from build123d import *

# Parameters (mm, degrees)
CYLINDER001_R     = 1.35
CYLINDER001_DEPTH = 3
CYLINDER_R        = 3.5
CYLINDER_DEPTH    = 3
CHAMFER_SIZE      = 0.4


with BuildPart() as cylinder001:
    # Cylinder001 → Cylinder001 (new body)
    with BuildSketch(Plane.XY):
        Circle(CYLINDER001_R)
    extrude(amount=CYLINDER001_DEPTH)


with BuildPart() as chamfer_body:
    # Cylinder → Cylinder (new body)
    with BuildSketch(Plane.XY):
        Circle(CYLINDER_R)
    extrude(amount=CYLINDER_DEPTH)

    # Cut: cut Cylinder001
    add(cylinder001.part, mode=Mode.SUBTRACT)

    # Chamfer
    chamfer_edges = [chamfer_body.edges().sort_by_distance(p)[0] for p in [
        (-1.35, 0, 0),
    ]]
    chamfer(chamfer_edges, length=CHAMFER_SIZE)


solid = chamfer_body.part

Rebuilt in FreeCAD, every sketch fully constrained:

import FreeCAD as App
import Part
import Sketcher


def edges_at(feature, points):
    """Names of the edges that pass closest to the given points."""
    edges = feature.Shape.Edges
    near = lambda p: min(range(len(edges)), key=lambda i: edges[i].distToShape(Part.Vertex(*p))[0])
    return sorted({f"Edge{near(p) + 1}" for p in points})

doc = App.newDocument("Part")
body = doc.addObject("PartDesign::Body", "Body")

sketch1 = doc.addObject("Sketcher::SketchObject", "Sketch")
body.addObject(sketch1)
sketch1.AttachmentSupport = (doc.XY_Plane, [""])
sketch1.MapMode = "FlatFace"
sketch1.addGeometry(Part.Circle(App.Vector(0, 0, 0), App.Vector(0, 0, 1), 1.35), False)
sketch1.addConstraint([
    Sketcher.Constraint("Coincident", 0, 3, -1, 1),
    Sketcher.Constraint("Diameter", 0, 2.7),
])
pad1 = doc.addObject("PartDesign::Pad", "Pad")
body.addObject(pad1)
pad1.Profile = sketch1
pad1.Length = 3
body2 = doc.addObject("PartDesign::Body", "Body001")

sketch2 = doc.addObject("Sketcher::SketchObject", "Sketch001")
body2.addObject(sketch2)
sketch2.AttachmentSupport = (doc.getObject("XY_Plane001"), [""])
sketch2.MapMode = "FlatFace"
sketch2.addGeometry(Part.Circle(App.Vector(0, 0, 0), App.Vector(0, 0, 1), 3.5), False)
sketch2.addConstraint([
    Sketcher.Constraint("Coincident", 0, 3, -1, 1),
    Sketcher.Constraint("Diameter", 0, 7.0),
])
pad2 = doc.addObject("PartDesign::Pad", "Pad001")
body2.addObject(pad2)
pad2.Profile = sketch2
pad2.Length = 3
doc.recompute()

boolean = doc.addObject("PartDesign::Boolean", "Boolean")
body2.addObject(boolean)
boolean.Type = "Cut"
boolean.addObjects([body])
doc.recompute()

chamfer = doc.addObject("PartDesign::Chamfer", "Chamfer")
body2.addObject(chamfer)
chamfer.Base = (boolean, edges_at(boolean, [(-1.35, 0, 0)]))
chamfer.Size = 0.4

doc.recompute()
